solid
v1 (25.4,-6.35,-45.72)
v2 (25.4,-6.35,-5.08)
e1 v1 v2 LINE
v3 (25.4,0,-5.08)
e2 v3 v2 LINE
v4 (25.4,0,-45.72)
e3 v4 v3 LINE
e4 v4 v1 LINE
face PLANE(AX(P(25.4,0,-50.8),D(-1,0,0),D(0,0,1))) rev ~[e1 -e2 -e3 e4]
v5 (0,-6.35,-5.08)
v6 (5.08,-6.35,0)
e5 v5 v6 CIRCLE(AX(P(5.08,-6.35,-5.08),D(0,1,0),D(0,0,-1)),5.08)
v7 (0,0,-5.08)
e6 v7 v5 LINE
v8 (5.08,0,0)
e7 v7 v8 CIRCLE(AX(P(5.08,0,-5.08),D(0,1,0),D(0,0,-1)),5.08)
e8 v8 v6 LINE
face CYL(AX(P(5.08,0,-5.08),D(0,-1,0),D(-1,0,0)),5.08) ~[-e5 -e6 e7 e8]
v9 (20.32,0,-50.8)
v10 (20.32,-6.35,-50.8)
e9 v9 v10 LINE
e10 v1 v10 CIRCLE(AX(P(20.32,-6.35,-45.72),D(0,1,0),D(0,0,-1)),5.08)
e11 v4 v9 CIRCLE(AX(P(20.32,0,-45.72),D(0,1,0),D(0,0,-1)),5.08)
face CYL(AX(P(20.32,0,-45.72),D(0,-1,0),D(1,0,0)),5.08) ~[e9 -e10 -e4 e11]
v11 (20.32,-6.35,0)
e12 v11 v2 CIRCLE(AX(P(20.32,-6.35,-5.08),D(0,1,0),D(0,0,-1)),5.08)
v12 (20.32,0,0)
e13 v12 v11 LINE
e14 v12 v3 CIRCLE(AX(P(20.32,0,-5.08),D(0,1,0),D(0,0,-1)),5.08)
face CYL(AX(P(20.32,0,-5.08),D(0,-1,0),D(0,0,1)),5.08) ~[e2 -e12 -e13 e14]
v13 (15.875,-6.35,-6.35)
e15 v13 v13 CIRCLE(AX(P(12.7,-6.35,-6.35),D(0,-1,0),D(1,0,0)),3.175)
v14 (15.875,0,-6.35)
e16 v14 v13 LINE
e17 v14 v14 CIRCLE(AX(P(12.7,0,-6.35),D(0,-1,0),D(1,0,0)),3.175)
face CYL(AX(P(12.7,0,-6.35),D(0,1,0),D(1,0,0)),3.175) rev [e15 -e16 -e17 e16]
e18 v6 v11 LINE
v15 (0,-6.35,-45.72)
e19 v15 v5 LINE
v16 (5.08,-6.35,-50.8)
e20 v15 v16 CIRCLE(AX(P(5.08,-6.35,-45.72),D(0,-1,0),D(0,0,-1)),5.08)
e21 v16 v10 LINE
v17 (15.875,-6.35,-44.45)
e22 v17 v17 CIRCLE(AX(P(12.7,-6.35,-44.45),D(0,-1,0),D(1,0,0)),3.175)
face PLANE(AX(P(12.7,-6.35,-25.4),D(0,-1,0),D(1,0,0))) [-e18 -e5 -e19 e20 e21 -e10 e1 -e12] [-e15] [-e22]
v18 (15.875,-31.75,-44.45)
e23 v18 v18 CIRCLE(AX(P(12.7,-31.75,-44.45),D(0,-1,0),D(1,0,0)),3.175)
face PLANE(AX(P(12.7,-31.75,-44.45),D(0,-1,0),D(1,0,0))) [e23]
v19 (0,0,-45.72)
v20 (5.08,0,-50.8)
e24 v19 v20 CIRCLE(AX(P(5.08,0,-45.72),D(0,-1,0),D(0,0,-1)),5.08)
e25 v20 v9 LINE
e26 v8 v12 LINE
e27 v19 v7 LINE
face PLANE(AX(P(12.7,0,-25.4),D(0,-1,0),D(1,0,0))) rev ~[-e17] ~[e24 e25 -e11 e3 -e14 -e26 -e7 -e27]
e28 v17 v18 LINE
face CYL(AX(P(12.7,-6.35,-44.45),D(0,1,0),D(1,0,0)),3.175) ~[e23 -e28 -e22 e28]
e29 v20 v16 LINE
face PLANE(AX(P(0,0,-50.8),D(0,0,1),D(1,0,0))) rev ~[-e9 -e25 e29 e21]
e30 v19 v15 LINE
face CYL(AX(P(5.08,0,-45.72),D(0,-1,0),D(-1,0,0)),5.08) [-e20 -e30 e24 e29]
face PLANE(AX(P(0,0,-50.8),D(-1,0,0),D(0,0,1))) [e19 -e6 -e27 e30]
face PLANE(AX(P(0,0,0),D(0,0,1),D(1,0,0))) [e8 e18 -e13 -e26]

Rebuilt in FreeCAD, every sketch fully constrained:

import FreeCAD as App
import Part
import Sketcher
Q = App.Units.Quantity


def edges_at(feature, points):
    """Names of the edges that pass closest to the given points."""
    edges = feature.Shape.Edges
    near = lambda p: min(range(len(edges)), key=lambda i: edges[i].distToShape(Part.Vertex(*p))[0])
    return sorted({f"Edge{near(p) + 1}" for p in points})


def add_polygon(sketch, points):
    """Adds a closed chain of lines whose ends are joined by coincident constraints."""
    first, n = sketch.GeometryCount, len(points)
    for a, b in zip(points, points[1:] + points[:1]):
        sketch.addGeometry(Part.LineSegment(App.Vector(*a, 0), App.Vector(*b, 0)), False)
    for i in range(n):
        sketch.addConstraint(Sketcher.Constraint("Coincident", first + i, 2, first + (i + 1) % n, 1))

doc = App.newDocument("Part")
params = doc.addObject("Spreadsheet::Sheet", "Params")
for row, (alias, value) in enumerate([
    ("sketch1_diameter", "0.25 in"),
    ("sketch1_width", "1 in"),
    ("sketch1_height", "2 in"),
    ("pad1_length", "0.25 in"),
    ("fillet_radius", "0.2 in"),
    ("fillet2_radius", "0.2 in"),
    ("fillet3_radius", "0.2 in"),
    ("sketch2_diameter", "0.25 in"),
    ("pad2_length", "1 in"),
], start=1):
    params.set(f"A{row}", alias)
    params.set(f"B{row}", "=" + value)
    params.setAlias(f"B{row}", alias)

body = doc.addObject("PartDesign::Body", "Body")

sketch1 = doc.addObject("Sketcher::SketchObject", "Sketch")
body.addObject(sketch1)
sketch1.AttachmentSupport = (doc.XZ_Plane, [""])
sketch1.MapMode = "FlatFace"
add_polygon(sketch1, [(0, 0), (0, -50.8), (25.4, -50.8), (25.4, 0)])
sketch1.addGeometry(Part.Circle(App.Vector(12.7, -6.3, 0), App.Vector(0, 0, 1), 3.2), False)
sketch1.addConstraint(Sketcher.Constraint("Vertical", 0))
sketch1.addConstraint(Sketcher.Constraint("Horizontal", 1))
sketch1.addConstraint(Sketcher.Constraint("Vertical", 2))
sketch1.addConstraint(Sketcher.Constraint("Horizontal", 3))
sketch1.addConstraint(Sketcher.Constraint("Coincident", 3, 2, -1, 1))
sketch1.addConstraint(Sketcher.Constraint("Diameter", 4, Q("0.25 in")))
sketch1.addConstraint(Sketcher.Constraint("DistanceX", 1, 1, 1, 2, Q("1 in")))
sketch1.addConstraint(Sketcher.Constraint("DistanceY", 0, 2, 0, 1, Q("2 in")))
sketch1.addConstraint(Sketcher.Constraint("DistanceX", -1, 1, 4, 3, Q("0.5 in")))
sketch1.addConstraint(Sketcher.Constraint("DistanceY", 4, 3, -1, 1, Q("0.25 in")))
sketch1.setExpression("Constraints[9]", "Params.sketch1_diameter")
sketch1.setExpression("Constraints[10]", "Params.sketch1_width")
sketch1.setExpression("Constraints[11]", "Params.sketch1_height")
pad1 = doc.addObject("PartDesign::Pad", "Pad")
body.addObject(pad1)
pad1.Profile = sketch1
pad1.setExpression("Length", "Params.pad1_length")
doc.recompute()

fillet = doc.addObject("PartDesign::Fillet", "Fillet")
body.addObject(fillet)
fillet.Base = (pad1, edges_at(pad1, [(0, -3.175, 0)]))
fillet.setExpression("Radius", "Params.fillet_radius")
doc.recompute()

fillet2 = doc.addObject("PartDesign::Fillet", "Fillet001")
body.addObject(fillet2)
fillet2.Base = (fillet, edges_at(fillet, [(25.4, -3.175, 0)]))
fillet2.setExpression("Radius", "Params.fillet2_radius")
doc.recompute()

fillet3 = doc.addObject("PartDesign::Fillet", "Fillet002")
body.addObject(fillet3)
fillet3.Base = (fillet2, edges_at(fillet2, [(25.4, -3.175, -50.8), (0, -3.175, -50.8)]))
fillet3.setExpression("Radius", "Params.fillet3_radius")

sketch2 = doc.addObject("Sketcher::SketchObject", "Sketch001")
body.addObject(sketch2)
sketch2.AttachmentSupport = (doc.XZ_Plane, [""])
sketch2.MapMode = "FlatFace"
sketch2.AttachmentOffset = App.Placement(App.Vector(0, 0, 0.25 * 25.4), App.Rotation())
sketch2.addGeometry(Part.Circle(App.Vector(12.7, -44.5, 0), App.Vector(0, 0, 1), 3.2), False)
sketch2.addConstraint(Sketcher.Constraint("Diameter", 0, Q("0.25 in")))
sketch2.addConstraint(Sketcher.Constraint("DistanceX", -1, 1, 0, 3, Q("0.5 in")))
sketch2.addConstraint(Sketcher.Constraint("DistanceY", 0, 3, -1, 1, Q("1.75 in")))
sketch2.setExpression("Constraints[0]", "Params.sketch2_diameter")
pad2 = doc.addObject("PartDesign::Pad", "Pad001")
body.addObject(pad2)
pad2.Profile = sketch2
pad2.setExpression("Length", "Params.pad2_length")

doc.recompute()
